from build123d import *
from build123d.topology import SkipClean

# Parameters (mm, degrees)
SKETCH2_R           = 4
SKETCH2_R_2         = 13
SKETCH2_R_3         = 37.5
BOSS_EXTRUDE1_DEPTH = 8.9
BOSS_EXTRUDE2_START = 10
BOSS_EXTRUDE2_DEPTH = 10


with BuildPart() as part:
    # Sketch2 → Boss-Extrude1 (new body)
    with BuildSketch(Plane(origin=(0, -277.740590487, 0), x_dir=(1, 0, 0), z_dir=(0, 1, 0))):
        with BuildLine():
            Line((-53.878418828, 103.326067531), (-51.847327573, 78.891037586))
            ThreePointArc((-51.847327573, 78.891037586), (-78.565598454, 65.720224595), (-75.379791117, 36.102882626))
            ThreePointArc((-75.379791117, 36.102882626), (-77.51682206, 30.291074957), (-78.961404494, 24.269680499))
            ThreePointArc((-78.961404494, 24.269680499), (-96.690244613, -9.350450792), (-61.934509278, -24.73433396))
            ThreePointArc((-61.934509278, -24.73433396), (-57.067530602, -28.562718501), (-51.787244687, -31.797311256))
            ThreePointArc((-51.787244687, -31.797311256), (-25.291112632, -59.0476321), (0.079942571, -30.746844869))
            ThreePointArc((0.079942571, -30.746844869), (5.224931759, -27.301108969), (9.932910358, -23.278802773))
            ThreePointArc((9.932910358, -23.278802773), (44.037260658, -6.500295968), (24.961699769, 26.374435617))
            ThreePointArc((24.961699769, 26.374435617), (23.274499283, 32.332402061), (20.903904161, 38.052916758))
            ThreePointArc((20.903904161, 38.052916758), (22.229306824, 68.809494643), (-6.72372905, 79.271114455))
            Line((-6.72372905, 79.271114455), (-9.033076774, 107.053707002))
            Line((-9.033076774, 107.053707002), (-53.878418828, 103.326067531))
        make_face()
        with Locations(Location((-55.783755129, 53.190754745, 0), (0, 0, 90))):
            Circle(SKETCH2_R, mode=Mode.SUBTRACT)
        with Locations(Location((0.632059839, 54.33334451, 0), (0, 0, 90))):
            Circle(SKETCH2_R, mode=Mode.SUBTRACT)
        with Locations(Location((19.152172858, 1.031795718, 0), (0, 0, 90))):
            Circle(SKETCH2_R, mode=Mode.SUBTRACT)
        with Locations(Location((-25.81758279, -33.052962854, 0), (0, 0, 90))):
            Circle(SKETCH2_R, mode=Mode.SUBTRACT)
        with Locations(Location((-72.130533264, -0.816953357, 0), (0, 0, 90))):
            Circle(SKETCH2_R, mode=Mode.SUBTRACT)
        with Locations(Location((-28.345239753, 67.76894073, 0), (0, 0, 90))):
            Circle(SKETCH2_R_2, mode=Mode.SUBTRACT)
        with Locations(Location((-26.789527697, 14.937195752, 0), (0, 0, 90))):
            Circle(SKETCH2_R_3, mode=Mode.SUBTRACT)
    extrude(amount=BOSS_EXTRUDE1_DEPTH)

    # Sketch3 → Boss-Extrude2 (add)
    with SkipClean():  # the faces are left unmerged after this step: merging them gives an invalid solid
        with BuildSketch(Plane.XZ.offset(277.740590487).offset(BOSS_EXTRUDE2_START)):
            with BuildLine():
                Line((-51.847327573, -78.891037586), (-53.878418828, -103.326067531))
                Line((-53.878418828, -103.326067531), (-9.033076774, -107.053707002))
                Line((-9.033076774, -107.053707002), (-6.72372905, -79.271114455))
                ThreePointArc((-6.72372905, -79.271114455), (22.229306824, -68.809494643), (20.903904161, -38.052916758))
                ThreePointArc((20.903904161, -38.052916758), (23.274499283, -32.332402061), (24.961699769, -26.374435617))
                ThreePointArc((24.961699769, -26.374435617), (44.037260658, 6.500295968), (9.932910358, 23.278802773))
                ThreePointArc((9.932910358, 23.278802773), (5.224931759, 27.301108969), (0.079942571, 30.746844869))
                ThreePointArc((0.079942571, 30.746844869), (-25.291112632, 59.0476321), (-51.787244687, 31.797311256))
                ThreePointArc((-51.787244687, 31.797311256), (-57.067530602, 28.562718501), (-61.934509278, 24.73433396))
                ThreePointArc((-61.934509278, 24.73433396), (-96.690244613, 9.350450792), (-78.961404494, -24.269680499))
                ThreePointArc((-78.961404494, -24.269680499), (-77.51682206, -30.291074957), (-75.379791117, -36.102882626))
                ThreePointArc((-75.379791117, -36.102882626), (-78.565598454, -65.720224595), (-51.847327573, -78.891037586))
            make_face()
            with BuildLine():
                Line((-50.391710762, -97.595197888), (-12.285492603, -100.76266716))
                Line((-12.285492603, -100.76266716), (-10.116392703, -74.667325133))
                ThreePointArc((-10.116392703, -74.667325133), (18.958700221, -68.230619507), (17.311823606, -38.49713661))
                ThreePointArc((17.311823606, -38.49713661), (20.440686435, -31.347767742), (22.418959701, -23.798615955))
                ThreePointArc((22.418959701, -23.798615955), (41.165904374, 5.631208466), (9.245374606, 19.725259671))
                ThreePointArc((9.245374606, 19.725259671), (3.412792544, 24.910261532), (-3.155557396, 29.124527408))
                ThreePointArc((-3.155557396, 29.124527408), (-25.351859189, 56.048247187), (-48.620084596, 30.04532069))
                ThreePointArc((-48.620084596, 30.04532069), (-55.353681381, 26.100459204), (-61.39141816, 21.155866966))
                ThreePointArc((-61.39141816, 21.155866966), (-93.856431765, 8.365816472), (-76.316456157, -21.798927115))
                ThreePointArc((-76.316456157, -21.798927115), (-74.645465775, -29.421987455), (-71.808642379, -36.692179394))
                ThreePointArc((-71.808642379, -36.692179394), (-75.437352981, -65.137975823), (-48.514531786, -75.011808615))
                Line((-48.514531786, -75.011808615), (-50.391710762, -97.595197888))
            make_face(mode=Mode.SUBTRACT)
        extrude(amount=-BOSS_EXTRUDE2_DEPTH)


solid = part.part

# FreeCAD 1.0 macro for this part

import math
import FreeCAD as App
import Part
import Sketcher
from FreeCAD import Vector
Q = App.Units.Quantity

doc = App.newDocument("Part")
params = doc.addObject("Spreadsheet::Sheet", "Params")
for row, (alias, value) in enumerate([
    ("sketch1_diameter", "8 mm"),
    ("sketch1_diameter2", "75 mm"),
    ("sketch1_diameter3", "26 mm"),
    ("sketch1_radius", "26 mm"),
    ("sketch1_radius2", "53 mm"),
    ("pad1_length", "8.9 mm"),
    ("sketch2_radius", "26 mm"),
    ("sketch2_radius2", "53 mm"),
    ("sketch2_radius3", "23 mm"),
    ("sketch2_radius4", "50 mm"),
    ("sketch2_length", "45 mm"),
    ("pad2_length", "10 mm"),
], start=1):
    params.set(f"A{row}", alias)
    params.set(f"B{row}", "=" + value)
    params.setAlias(f"B{row}", alias)

body = doc.addObject("PartDesign::Body", "Body")

# Sketch on XZ plane
sketch1 = body.newObject("Sketcher::SketchObject", "Sketch")
sketch1.AttachmentSupport = (doc.getObject("XZ_Plane"), [""])
sketch1.MapMode = "FlatFace"
sketch1.AttachmentOffset = App.Placement(Vector(0, 0, 277.74059), App.Rotation())
sketch1.addGeometry(Part.LineSegment(Vector(-53.878419, -103.326068, 0), Vector(-51.847328, -78.891038, 0)), False)
sketch1.addGeometry(Part.ArcOfCircle(Part.Circle(Vector(-55.783755, -53.190755, 0), Vector(0, 0, 1), 26), math.radians(138.911358), math.radians(278.708129)), False)
sketch1.addGeometry(Part.ArcOfCircle(Part.Circle(Vector(-26.789528, -14.937196, 0), Vector(0, 0, 1), 53), math.radians(-169.858218), math.radians(-156.462288)), False)
sketch1.addGeometry(Part.ArcOfCircle(Part.Circle(Vector(-72.130533, 0.816953, 0), Vector(0, 0, 1), 26), math.radians(66.911358), math.radians(254.768136)), False)
sketch1.addGeometry(Part.ArcOfCircle(Part.Circle(Vector(-26.789528, -14.937196, 0), Vector(0, 0, 1), 53), math.radians(118.141782), math.radians(131.537712)), False)
sketch1.addGeometry(Part.ArcOfCircle(Part.Circle(Vector(-25.817583, 33.052963, 0), Vector(0, 0, 1), 26), math.radians(-5.088642), math.radians(182.768136)), False)
sketch1.addGeometry(Part.ArcOfCircle(Part.Circle(Vector(-26.789528, -14.937196, 0), Vector(0, 0, 1), 53), math.radians(46.141782), math.radians(59.537712)), False)
sketch1.addGeometry(Part.ArcOfCircle(Part.Circle(Vector(19.152173, -1.031796, 0), Vector(0, 0, 1), 26), math.radians(-77.088642), math.radians(110.768136)), False)
sketch1.addGeometry(Part.ArcOfCircle(Part.Circle(Vector(-26.789528, -14.937196, 0), Vector(0, 0, 1), 53), math.radians(-25.858218), math.radians(-12.462288)), False)
sketch1.addGeometry(Part.ArcOfCircle(Part.Circle(Vector(0.63206, -54.333345, 0), Vector(0, 0, 1), 26), math.radians(-106.434256), math.radians(38.768136)), False)
sketch1.addGeometry(Part.LineSegment(Vector(-6.723729, -79.271114, 0), Vector(-9.033077, -107.053707, 0)), False)
sketch1.addGeometry(Part.LineSegment(Vector(-9.033077, -107.053707, 0), Vector(-53.878419, -103.326068, 0)), False)
sketch1.addGeometry(Part.Circle(Vector(-72.130533, 0.816953, 0), Vector(0, 0, 1), 4), False)
sketch1.addGeometry(Part.Circle(Vector(-26.789528, -14.937196, 0), Vector(0, 0, 1), 37.5), False)
sketch1.addGeometry(Part.Circle(Vector(-25.817583, 33.052963, 0), Vector(0, 0, 1), 4), False)
sketch1.addGeometry(Part.Circle(Vector(19.152173, -1.031796, 0), Vector(0, 0, 1), 4), False)
sketch1.addGeometry(Part.Circle(Vector(-55.783755, -53.190755, 0), Vector(0, 0, 1), 4), False)
sketch1.addGeometry(Part.Circle(Vector(-28.34524, -67.768941, 0), Vector(0, 0, 1), 13), False)
sketch1.addGeometry(Part.Circle(Vector(0.63206, -54.333345, 0), Vector(0, 0, 1), 4), False)
sketch1.addConstraint(Sketcher.Constraint("Coincident", 0, 2, 1, 2))
sketch1.addConstraint(Sketcher.Constraint("Coincident", 1, 1, 2, 2))
sketch1.addConstraint(Sketcher.Constraint("Coincident", 2, 1, 3, 2))
sketch1.addConstraint(Sketcher.Constraint("Coincident", 3, 1, 4, 2))
sketch1.addConstraint(Sketcher.Constraint("Coincident", 4, 1, 5, 2))
sketch1.addConstraint(Sketcher.Constraint("Coincident", 5, 1, 6, 2))
sketch1.addConstraint(Sketcher.Constraint("Coincident", 6, 1, 7, 2))
sketch1.addConstraint(Sketcher.Constraint("Coincident", 7, 1, 8, 2))
sketch1.addConstraint(Sketcher.Constraint("Coincident", 8, 1, 9, 2))
sketch1.addConstraint(Sketcher.Constraint("Coincident", 9, 1, 10, 1))
sketch1.addConstraint(Sketcher.Constraint("Coincident", 10, 2, 11, 1))
sketch1.addConstraint(Sketcher.Constraint("Coincident", 11, 2, 0, 1))
sketch1.addConstraint(Sketcher.Constraint("Coincident", 4, 3, 2, 3))
sketch1.addConstraint(Sketcher.Constraint("Coincident", 6, 3, 2, 3))
sketch1.addConstraint(Sketcher.Constraint("Coincident", 8, 3, 2, 3))
sketch1.addConstraint(Sketcher.Constraint("Coincident", 12, 3, 3, 3))
sketch1.addConstraint(Sketcher.Constraint("Coincident", 13, 3, 2, 3))
sketch1.addConstraint(Sketcher.Constraint("Coincident", 14, 3, 5, 3))
sketch1.addConstraint(Sketcher.Constraint("Coincident", 15, 3, 7, 3))
sketch1.addConstraint(Sketcher.Constraint("Coincident", 16, 3, 1, 3))
sketch1.addConstraint(Sketcher.Constraint("Coincident", 18, 3, 9, 3))
sketch1.addConstraint(Sketcher.Constraint("Equal", 1, 3))
sketch1.addConstraint(Sketcher.Constraint("Equal", 2, 4))
sketch1.addConstraint(Sketcher.Constraint("Equal", 3, 5))
sketch1.addConstraint(Sketcher.Constraint("Equal", 4, 6))
sketch1.addConstraint(Sketcher.Constraint("Equal", 5, 7))
sketch1.addConstraint(Sketcher.Constraint("Equal", 6, 8))
sketch1.addConstraint(Sketcher.Constraint("Equal", 7, 9))
sketch1.addConstraint(Sketcher.Constraint("Equal", 12, 14))
sketch1.addConstraint(Sketcher.Constraint("Equal", 14, 15))
sketch1.addConstraint(Sketcher.Constraint("Equal", 15, 16))
sketch1.addConstraint(Sketcher.Constraint("Equal", 16, 18))
sketch1.addConstraint(Sketcher.Constraint("Parallel", 0, 10))
sketch1.addConstraint(Sketcher.Constraint("Perpendicular", 10, 11))
sketch1.addConstraint(Sketcher.Constraint("Diameter", 12, Q("8 mm")))
sketch1.addConstraint(Sketcher.Constraint("Diameter", 13, Q("75 mm")))
sketch1.addConstraint(Sketcher.Constraint("Diameter", 17, Q("26 mm")))
sketch1.addConstraint(Sketcher.Constraint("Radius", 1, Q("26 mm")))
sketch1.addConstraint(Sketcher.Constraint("Radius", 2, Q("53 mm")))
sketch1.addConstraint(Sketcher.Constraint("Distance", 11, Q("45 mm")))
sketch1.addConstraint(Sketcher.Constraint("Distance", 0, Q("24.519299 mm")))
sketch1.addConstraint(Sketcher.Constraint("DistanceX", -1, 1, 7, 1, Q("24.9617 mm")))
sketch1.addConstraint(Sketcher.Constraint("DistanceX", 2, 3, 7, 3, Q("45.9417 mm")))
sketch1.addConstraint(Sketcher.Constraint("DistanceY", 2, 3, 7, 3, Q("13.9054 mm")))
sketch1.addConstraint(Sketcher.Constraint("DistanceX", 17, 3, 9, 3, Q("28.9773 mm")))
sketch1.addConstraint(Sketcher.Constraint("DistanceX", 0, 2, 9, 1, Q("45.123599 mm")))
sketch1.addConstraint(Sketcher.Constraint("DistanceX", -1, 1, 9, 3, Q("0.63206 mm")))
sketch1.addConstraint(Sketcher.Constraint("DistanceY", 17, 3, -1, 1, Q("67.768941 mm")))
sketch1.addConstraint(Sketcher.Constraint("DistanceX", 1, 1, -1, 1, Q("75.379791 mm")))
sketch1.addConstraint(Sketcher.Constraint("DistanceY", 2, 1, -1, 1, Q("24.26968 mm")))
sketch1.addConstraint(Sketcher.Constraint("DistanceX", 3, 1, -1, 1, Q("61.934509 mm")))
sketch1.addConstraint(Sketcher.Constraint("DistanceY", -1, 1, 4, 1, Q("31.797311 mm")))
sketch1.addConstraint(Sketcher.Constraint("DistanceX", 9, 1, -1, 1, Q("6.723729 mm")))
sketch1.addConstraint(Sketcher.Constraint("DistanceX", 11, 2, -1, 1, Q("53.878419 mm")))
sketch1.addConstraint(Sketcher.Constraint("DistanceY", 1, 3, 2, 3, Q("38.253559 mm")))
sketch1.addConstraint(Sketcher.Constraint("DistanceY", 2, 3, 3, 3, Q("15.754149 mm")))
sketch1.addConstraint(Sketcher.Constraint("DistanceY", 2, 3, 5, 3, Q("47.990159 mm")))
sketch1.setExpression("Constraints[34]", "Params.sketch1_diameter")
sketch1.setExpression("Constraints[35]", "Params.sketch1_diameter2")
sketch1.setExpression("Constraints[36]", "Params.sketch1_diameter3")
sketch1.setExpression("Constraints[37]", "Params.sketch1_radius")
sketch1.setExpression("Constraints[38]", "Params.sketch1_radius2")
pad1 = body.newObject("PartDesign::Pad", "Pad")
pad1.Profile = sketch1
pad1.setExpression("Length", "Params.pad1_length")
pad1.Reversed = True

# Sketch on XZ plane
sketch2 = body.newObject("Sketcher::SketchObject", "Sketch001")
sketch2.AttachmentSupport = (doc.getObject("XZ_Plane"), [""])
sketch2.MapMode = "FlatFace"
sketch2.AttachmentOffset = App.Placement(Vector(0, 0, 287.74059), App.Rotation())
sketch2.addGeometry(Part.LineSegment(Vector(-51.847328, -78.891038, 0), Vector(-53.878419, -103.326068, 0)), False)
sketch2.addGeometry(Part.LineSegment(Vector(-53.878419, -103.326068, 0), Vector(-9.033077, -107.053707, 0)), False)
sketch2.addGeometry(Part.LineSegment(Vector(-9.033077, -107.053707, 0), Vector(-6.723729, -79.271114, 0)), False)
sketch2.addGeometry(Part.ArcOfCircle(Part.Circle(Vector(0.63206, -54.333345, 0), Vector(0, 0, 1), 26), math.radians(-106.434256), math.radians(38.768136)), False)
sketch2.addGeometry(Part.ArcOfCircle(Part.Circle(Vector(-26.789528, -14.937196, 0), Vector(0, 0, 1), 53), math.radians(-25.858218), math.radians(-12.462288)), False)
sketch2.addGeometry(Part.ArcOfCircle(Part.Circle(Vector(19.152173, -1.031796, 0), Vector(0, 0, 1), 26), math.radians(-77.088642), math.radians(110.768136)), False)
sketch2.addGeometry(Part.ArcOfCircle(Part.Circle(Vector(-26.789528, -14.937196, 0), Vector(0, 0, 1), 53), math.radians(46.141782), math.radians(59.537712)), False)
sketch2.addGeometry(Part.ArcOfCircle(Part.Circle(Vector(-25.817583, 33.052963, 0), Vector(0, 0, 1), 26), math.radians(-5.088642), math.radians(182.768136)), False)
sketch2.addGeometry(Part.ArcOfCircle(Part.Circle(Vector(-26.789528, -14.937196, 0), Vector(0, 0, 1), 53), math.radians(118.141782), math.radians(131.537712)), False)
sketch2.addGeometry(Part.ArcOfCircle(Part.Circle(Vector(-72.130533, 0.816953, 0), Vector(0, 0, 1), 26), math.radians(66.911358), math.radians(254.768136)), False)
sketch2.addGeometry(Part.ArcOfCircle(Part.Circle(Vector(-26.789528, -14.937196, 0), Vector(0, 0, 1), 53), math.radians(-169.858218), math.radians(-156.462288)), False)
sketch2.addGeometry(Part.ArcOfCircle(Part.Circle(Vector(-55.783755, -53.190755, 0), Vector(0, 0, 1), 26), math.radians(138.911358), math.radians(278.708129)), False)
sketch2.addGeometry(Part.LineSegment(Vector(-12.285493, -100.762667, 0), Vector(-50.391711, -97.595198, 0)), False)
sketch2.addGeometry(Part.LineSegment(Vector(-50.391711, -97.595198, 0), Vector(-48.514532, -75.011809, 0)), False)
sketch2.addGeometry(Part.ArcOfCircle(Part.Circle(Vector(-55.783755, -53.190755, 0), Vector(0, 0, 1), 23), math.radians(134.165574), math.radians(288.424406)), False)
sketch2.addGeometry(Part.ArcOfCircle(Part.Circle(Vector(-26.789528, -14.937196, 0), Vector(0, 0, 1), 50), math.radians(-172.112143), math.radians(-154.208364)), False)
sketch2.addGeometry(Part.ArcOfCircle(Part.Circle(Vector(-72.130533, 0.816953, 0), Vector(0, 0, 1), 23), math.radians(62.165574), math.radians(259.513919)), False)
sketch2.addGeometry(Part.ArcOfCircle(Part.Circle(Vector(-26.789528, -14.937196, 0), Vector(0, 0, 1), 50), math.radians(115.887857), math.radians(133.791636)), False)
sketch2.addGeometry(Part.ArcOfCircle(Part.Circle(Vector(-25.817583, 33.052963, 0), Vector(0, 0, 1), 23), math.radians(-9.834426), math.radians(187.513919)), False)
sketch2.addGeometry(Part.ArcOfCircle(Part.Circle(Vector(-26.789528, -14.937196, 0), Vector(0, 0, 1), 50), math.radians(43.887857), math.radians(61.791636)), False)
sketch2.addGeometry(Part.ArcOfCircle(Part.Circle(Vector(19.152173, -1.031796, 0), Vector(0, 0, 1), 23), math.radians(-81.834426), math.radians(115.513919)), False)
sketch2.addGeometry(Part.ArcOfCircle(Part.Circle(Vector(-26.789528, -14.937196, 0), Vector(0, 0, 1), 50), math.radians(-28.112143), math.radians(-10.208364)), False)
sketch2.addGeometry(Part.ArcOfCircle(Part.Circle(Vector(0.63206, -54.333345, 0), Vector(0, 0, 1), 23), math.radians(-117.860733), math.radians(43.513919)), False)
sketch2.addGeometry(Part.LineSegment(Vector(-10.116393, -74.667325, 0), Vector(-12.285493, -100.762667, 0)), False)
sketch2.addConstraint(Sketcher.Constraint("Coincident", 0, 2, 1, 1))
sketch2.addConstraint(Sketcher.Constraint("Coincident", 1, 2, 2, 1))
sketch2.addConstraint(Sketcher.Constraint("Coincident", 2, 2, 3, 1))
sketch2.addConstraint(Sketcher.Constraint("Coincident", 3, 2, 4, 1))
sketch2.addConstraint(Sketcher.Constraint("Coincident", 4, 2, 5, 1))
sketch2.addConstraint(Sketcher.Constraint("Coincident", 5, 2, 6, 1))
sketch2.addConstraint(Sketcher.Constraint("Coincident", 6, 2, 7, 1))
sketch2.addConstraint(Sketcher.Constraint("Coincident", 7, 2, 8, 1))
sketch2.addConstraint(Sketcher.Constraint("Coincident", 8, 2, 9, 1))
sketch2.addConstraint(Sketcher.Constraint("Coincident", 9, 2, 10, 1))
sketch2.addConstraint(Sketcher.Constraint("Coincident", 10, 2, 11, 1))
sketch2.addConstraint(Sketcher.Constraint("Coincident", 11, 2, 0, 1))
sketch2.addConstraint(Sketcher.Constraint("Coincident", 12, 2, 13, 1))
sketch2.addConstraint(Sketcher.Constraint("Coincident", 13, 2, 14, 2))
sketch2.addConstraint(Sketcher.Constraint("Coincident", 14, 1, 15, 2))
sketch2.addConstraint(Sketcher.Constraint("Coincident", 15, 1, 16, 2))
sketch2.addConstraint(Sketcher.Constraint("Coincident", 16, 1, 17, 2))
sketch2.addConstraint(Sketcher.Constraint("Coincident", 17, 1, 18, 2))
sketch2.addConstraint(Sketcher.Constraint("Coincident", 18, 1, 19, 2))
sketch2.addConstraint(Sketcher.Constraint("Coincident", 19, 1, 20, 2))
sketch2.addConstraint(Sketcher.Constraint("Coincident", 20, 1, 21, 2))
sketch2.addConstraint(Sketcher.Constraint("Coincident", 21, 1, 22, 2))
sketch2.addConstraint(Sketcher.Constraint("Coincident", 22, 1, 23, 1))
sketch2.addConstraint(Sketcher.Constraint("Coincident", 23, 2, 12, 1))
sketch2.addConstraint(Sketcher.Constraint("Coincident", 6, 3, 4, 3))
sketch2.addConstraint(Sketcher.Constraint("Coincident", 8, 3, 4, 3))
sketch2.addConstraint(Sketcher.Constraint("Coincident", 10, 3, 4, 3))
sketch2.addConstraint(Sketcher.Constraint("Coincident", 14, 3, 11, 3))
sketch2.addConstraint(Sketcher.Constraint("Coincident", 15, 3, 4, 3))
sketch2.addConstraint(Sketcher.Constraint("Coincident", 16, 3, 9, 3))
sketch2.addConstraint(Sketcher.Constraint("Coincident", 17, 3, 4, 3))
sketch2.addConstraint(Sketcher.Constraint("Coincident", 18, 3, 7, 3))
sketch2.addConstraint(Sketcher.Constraint("Coincident", 19, 3, 4, 3))
sketch2.addConstraint(Sketcher.Constraint("Coincident", 20, 3, 5, 3))
sketch2.addConstraint(Sketcher.Constraint("Coincident", 21, 3, 4, 3))
sketch2.addConstraint(Sketcher.Constraint("Coincident", 22, 3, 3, 3))
sketch2.addConstraint(Sketcher.Constraint("Equal", 3, 5))
sketch2.addConstraint(Sketcher.Constraint("Equal", 4, 6))
sketch2.addConstraint(Sketcher.Constraint("Equal", 5, 7))
sketch2.addConstraint(Sketcher.Constraint("Equal", 6, 8))
sketch2.addConstraint(Sketcher.Constraint("Equal", 7, 9))
sketch2.addConstraint(Sketcher.Constraint("Equal", 8, 10))
sketch2.addConstraint(Sketcher.Constraint("Equal", 9, 11))
sketch2.addConstraint(Sketcher.Constraint("Equal", 14, 16))
sketch2.addConstraint(Sketcher.Constraint("Equal", 15, 17))
sketch2.addConstraint(Sketcher.Constraint("Equal", 16, 18))
sketch2.addConstraint(Sketcher.Constraint("Equal", 17, 19))
sketch2.addConstraint(Sketcher.Constraint("Equal", 18, 20))
sketch2.addConstraint(Sketcher.Constraint("Equal", 19, 21))
sketch2.addConstraint(Sketcher.Constraint("Equal", 20, 22))
sketch2.addConstraint(Sketcher.Constraint("Perpendicular", 0, 1))
sketch2.addConstraint(Sketcher.Constraint("Perpendicular", 1, 2))
sketch2.addConstraint(Sketcher.Constraint("Perpendicular", 2, 12))
sketch2.addConstraint(Sketcher.Constraint("Perpendicular", 12, 13))
sketch2.addConstraint(Sketcher.Constraint("Parallel", 13, 23))
sketch2.addConstraint(Sketcher.Constraint("Radius", 3, Q("26 mm")))
sketch2.addConstraint(Sketcher.Constraint("Radius", 4, Q("53 mm")))
sketch2.addConstraint(Sketcher.Constraint("Radius", 14, Q("23 mm")))
sketch2.addConstraint(Sketcher.Constraint("Radius", 15, Q("50 mm")))
sketch2.addConstraint(Sketcher.Constraint("Distance", 1, Q("45 mm")))
sketch2.addConstraint(Sketcher.Constraint("Distance", 0, Q("24.519299 mm")))
sketch2.addConstraint(Sketcher.Constraint("DistanceX", -1, 1, 4, 2, Q("24.9617 mm")))
sketch2.addConstraint(Sketcher.Constraint("DistanceX", 4, 3, 5, 3, Q("45.941701 mm")))
sketch2.addConstraint(Sketcher.Constraint("DistanceY", 4, 3, 5, 3, Q("13.9054 mm")))
sketch2.addConstraint(Sketcher.Constraint("DistanceX", 11, 2, 2, 2, Q("45.123599 mm")))
sketch2.addConstraint(Sketcher.Constraint("DistanceY", 14, 1, 9, 2, Q("12.422499 mm")))
sketch2.addConstraint(Sketcher.Constraint("DistanceX", 17, 1, 18, 3, Q("22.802502 mm")))
sketch2.addConstraint(Sketcher.Constraint("DistanceY", 3, 2, 20, 1, Q("14.254301 mm")))
sketch2.addConstraint(Sketcher.Constraint("DistanceX", 3, 3, 20, 1, Q("21.7869 mm")))
sketch2.addConstraint(Sketcher.Constraint("DistanceX", 23, 2, 22, 1, Q("2.1691 mm")))
sketch2.addConstraint(Sketcher.Constraint("DistanceY", 0, 2, 23, 2, Q("2.5634 mm")))
sketch2.addConstraint(Sketcher.Constraint("DistanceX", 0, 2, -1, 1, Q("53.878419 mm")))
sketch2.addConstraint(Sketcher.Constraint("DistanceX", 2, 2, -1, 1, Q("6.723729 mm")))
sketch2.addConstraint(Sketcher.Constraint("DistanceY", -1, 1, 7, 2, Q("31.797311 mm")))
sketch2.addConstraint(Sketcher.Constraint("DistanceX", 8, 2, -1, 1, Q("61.934509 mm")))
sketch2.addConstraint(Sketcher.Constraint("DistanceY", 9, 2, -1, 1, Q("24.26968 mm")))
sketch2.addConstraint(Sketcher.Constraint("DistanceX", 10, 2, -1, 1, Q("75.379791 mm")))
sketch2.addConstraint(Sketcher.Constraint("DistanceX", 12, 2, -1, 1, Q("50.391711 mm")))
sketch2.setExpression("Constraints[55]", "Params.sketch2_radius")
sketch2.setExpression("Constraints[56]", "Params.sketch2_radius2")
sketch2.setExpression("Constraints[57]", "Params.sketch2_radius3")
sketch2.setExpression("Constraints[58]", "Params.sketch2_radius4")
sketch2.setExpression("Constraints[59]", "Params.sketch2_length")
pad2 = body.newObject("PartDesign::Pad", "Pad001")
pad2.Profile = sketch2
pad2.setExpression("Length", "Params.pad2_length")
pad2.Reversed = True

doc.recompute()
